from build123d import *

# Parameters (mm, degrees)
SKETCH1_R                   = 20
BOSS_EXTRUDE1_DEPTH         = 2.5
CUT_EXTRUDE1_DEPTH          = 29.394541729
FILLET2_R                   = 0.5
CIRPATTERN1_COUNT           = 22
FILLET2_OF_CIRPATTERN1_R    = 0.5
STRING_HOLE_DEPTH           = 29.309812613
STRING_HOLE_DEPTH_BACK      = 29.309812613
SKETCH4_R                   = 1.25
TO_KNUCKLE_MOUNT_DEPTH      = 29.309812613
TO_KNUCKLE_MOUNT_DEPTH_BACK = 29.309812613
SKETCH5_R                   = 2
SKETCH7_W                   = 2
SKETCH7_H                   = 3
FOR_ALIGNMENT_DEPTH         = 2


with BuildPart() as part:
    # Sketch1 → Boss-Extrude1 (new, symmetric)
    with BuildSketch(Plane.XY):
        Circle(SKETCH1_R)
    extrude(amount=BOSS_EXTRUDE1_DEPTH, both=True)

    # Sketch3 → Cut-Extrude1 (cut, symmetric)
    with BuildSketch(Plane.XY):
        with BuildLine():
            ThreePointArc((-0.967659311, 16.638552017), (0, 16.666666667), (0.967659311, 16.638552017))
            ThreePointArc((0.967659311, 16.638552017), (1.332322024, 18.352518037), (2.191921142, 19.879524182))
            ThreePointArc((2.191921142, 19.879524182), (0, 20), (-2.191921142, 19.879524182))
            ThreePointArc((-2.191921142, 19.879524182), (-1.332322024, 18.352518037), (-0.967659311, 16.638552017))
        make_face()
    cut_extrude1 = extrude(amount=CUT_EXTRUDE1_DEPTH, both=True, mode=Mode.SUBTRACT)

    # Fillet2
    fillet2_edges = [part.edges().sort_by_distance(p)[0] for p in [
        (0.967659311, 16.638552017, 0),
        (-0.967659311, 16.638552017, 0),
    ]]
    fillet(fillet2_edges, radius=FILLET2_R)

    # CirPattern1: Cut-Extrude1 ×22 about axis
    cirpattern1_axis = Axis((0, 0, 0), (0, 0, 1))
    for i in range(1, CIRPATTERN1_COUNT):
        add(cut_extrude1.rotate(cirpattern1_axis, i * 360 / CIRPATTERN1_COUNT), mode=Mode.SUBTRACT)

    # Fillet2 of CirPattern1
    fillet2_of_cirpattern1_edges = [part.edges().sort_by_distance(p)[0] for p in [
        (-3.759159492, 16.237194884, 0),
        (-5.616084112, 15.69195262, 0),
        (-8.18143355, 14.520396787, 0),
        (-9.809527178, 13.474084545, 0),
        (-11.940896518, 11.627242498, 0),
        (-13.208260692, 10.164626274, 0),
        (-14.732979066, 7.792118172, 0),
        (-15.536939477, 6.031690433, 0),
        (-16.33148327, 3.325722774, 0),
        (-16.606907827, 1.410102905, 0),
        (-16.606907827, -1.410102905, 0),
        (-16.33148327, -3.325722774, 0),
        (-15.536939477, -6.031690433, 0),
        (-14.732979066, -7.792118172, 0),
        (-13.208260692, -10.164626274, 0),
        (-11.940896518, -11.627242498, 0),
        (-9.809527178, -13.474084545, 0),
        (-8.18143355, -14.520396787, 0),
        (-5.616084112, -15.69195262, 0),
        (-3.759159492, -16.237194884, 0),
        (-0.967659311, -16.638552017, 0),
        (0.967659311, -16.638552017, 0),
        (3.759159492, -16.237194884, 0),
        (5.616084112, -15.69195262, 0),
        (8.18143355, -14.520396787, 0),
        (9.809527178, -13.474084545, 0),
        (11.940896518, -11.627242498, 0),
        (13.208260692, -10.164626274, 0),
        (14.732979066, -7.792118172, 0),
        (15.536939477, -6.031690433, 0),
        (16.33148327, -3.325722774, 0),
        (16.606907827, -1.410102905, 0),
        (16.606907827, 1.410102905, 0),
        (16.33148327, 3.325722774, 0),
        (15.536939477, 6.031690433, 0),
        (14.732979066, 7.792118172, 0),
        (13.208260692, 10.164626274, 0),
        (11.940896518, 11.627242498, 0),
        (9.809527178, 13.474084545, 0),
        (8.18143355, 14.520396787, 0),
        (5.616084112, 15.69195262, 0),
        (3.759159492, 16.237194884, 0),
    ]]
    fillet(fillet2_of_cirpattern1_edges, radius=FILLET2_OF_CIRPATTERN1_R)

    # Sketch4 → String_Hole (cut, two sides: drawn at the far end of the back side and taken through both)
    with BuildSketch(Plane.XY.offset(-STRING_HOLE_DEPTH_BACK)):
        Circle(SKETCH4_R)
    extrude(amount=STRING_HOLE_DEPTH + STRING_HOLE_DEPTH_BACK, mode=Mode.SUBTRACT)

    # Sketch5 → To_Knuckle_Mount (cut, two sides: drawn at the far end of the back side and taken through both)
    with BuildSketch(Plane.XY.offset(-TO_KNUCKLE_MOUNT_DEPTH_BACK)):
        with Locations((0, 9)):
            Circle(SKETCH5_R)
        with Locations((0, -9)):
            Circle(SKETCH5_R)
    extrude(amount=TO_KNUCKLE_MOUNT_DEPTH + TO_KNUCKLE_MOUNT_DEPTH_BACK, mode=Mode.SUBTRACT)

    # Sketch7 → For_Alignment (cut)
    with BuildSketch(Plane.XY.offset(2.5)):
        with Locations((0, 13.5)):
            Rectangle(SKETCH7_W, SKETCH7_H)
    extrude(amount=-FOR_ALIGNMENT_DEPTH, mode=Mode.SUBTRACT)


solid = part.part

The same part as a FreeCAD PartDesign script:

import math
import FreeCAD as App
import Part
import Sketcher
from FreeCAD import Vector
Q = App.Units.Quantity


def edges_at(feature, points):
    """Names of the edges that pass closest to the given points."""
    edges = feature.Shape.Edges
    near = lambda p: min(range(len(edges)), key=lambda i: edges[i].distToShape(Part.Vertex(*p))[0])
    return sorted({f"Edge{near(p) + 1}" for p in points})

doc = App.newDocument("Part")
params = doc.addObject("Spreadsheet::Sheet", "Params")
for row, (alias, value) in enumerate([
    ("sketch1_diameter", "40 mm"),
    ("pad1_length", "5 mm"),
    ("sketch2_radius", "20 mm"),
    ("pocket1_length", "58.789083 mm"),
    ("fillet_radius", "0.5 mm"),
    ("fillet2_radius", "0.5 mm"),
    ("sketch3_diameter", "2.5 mm"),
    ("sketch4_diameter", "4 mm"),
    ("sketch5_width", "2 mm"),
    ("sketch5_height", "3 mm"),
    ("pocket4_length", "2 mm"),
], start=1):
    params.set(f"A{row}", alias)
    params.set(f"B{row}", "=" + value)
    params.setAlias(f"B{row}", alias)

body = doc.addObject("PartDesign::Body", "Body")

# Sketch on XY plane
sketch1 = body.newObject("Sketcher::SketchObject", "Sketch")
sketch1.AttachmentSupport = (doc.getObject("XY_Plane"), [""])
sketch1.MapMode = "FlatFace"
sketch1.addGeometry(Part.Circle(Vector(0, 0, 0), Vector(0, 0, 1), 20), False)
sketch1.addConstraint([
    Sketcher.Constraint("Coincident", 0, 3, -1, 1),
    Sketcher.Constraint("Diameter", 0, Q("40 mm")),
])
sketch1.setExpression("Constraints[1]", "Params.sketch1_diameter")
pad1 = body.newObject("PartDesign::Pad", "Pad")
pad1.Profile = sketch1
pad1.setExpression("Length", "Params.pad1_length")
pad1.Midplane = True

# Sketch on XY plane
sketch2 = body.newObject("Sketcher::SketchObject", "Sketch001")
sketch2.AttachmentSupport = (doc.getObject("XY_Plane"), [""])
sketch2.MapMode = "FlatFace"
sketch2.addGeometry([
    Part.ArcOfCircle(Part.Circle(Vector(0, 0, 0), Vector(0, 0, 1), 16.7), math.radians(86.67), math.radians(93.33)),
    Part.ArcOfCircle(Part.Circle(Vector(6.8, 16.3, 0), Vector(0, 0, 1), 5.8), math.radians(142), math.radians(177)),
    Part.ArcOfCircle(Part.Circle(Vector(0, 0, 0), Vector(0, 0, 1), 20), math.radians(83.71), math.radians(96.29)),
    Part.ArcOfCircle(Part.Circle(Vector(-6.8, 16.3, 0), Vector(0, 0, 1), 5.8), math.radians(3), math.radians(38)),
], False)
sketch2.addConstraint([
    Sketcher.Constraint("Coincident", 0, 1, 1, 2),
    Sketcher.Constraint("Coincident", 1, 1, 2, 1),
    Sketcher.Constraint("Coincident", 2, 2, 3, 2),
    Sketcher.Constraint("Coincident", 3, 1, 0, 2),
    Sketcher.Constraint("Coincident", 0, 3, -1, 1),
    Sketcher.Constraint("Coincident", 2, 3, -1, 1),
    Sketcher.Constraint("Equal", 1, 3),
    Sketcher.Constraint("Symmetric", 1, 3, 3, 3, -2),
    Sketcher.Constraint("Radius", 2, Q("20 mm")),
    Sketcher.Constraint("Radius", 1, Q("5.803869 mm")),
    Sketcher.Constraint("Radius", 0, Q("16.666666 mm")),
    Sketcher.Constraint("DistanceX", -1, 1, 1, 3, Q("6.761738 mm")),
    Sketcher.Constraint("DistanceY", -1, 1, 1, 3, Q("16.301582 mm")),
])
sketch2.setExpression("Constraints[8]", "Params.sketch2_radius")
pocket1 = body.newObject("PartDesign::Pocket", "Pocket")
pocket1.Profile = sketch2
pocket1.setExpression("Length", "Params.pocket1_length")
pocket1.Midplane = True
doc.recompute()

fillet = body.newObject("PartDesign::Fillet", "Fillet")
fillet.Base = (pocket1, edges_at(pocket1, [(0.968, 16.639, 0), (-0.968, 16.639, 0)]))
fillet.setExpression("Radius", "Params.fillet_radius")
doc.recompute()

polarpattern = body.newObject("PartDesign::PolarPattern", "PolarPattern")
polarpattern.Originals = [pocket1]
polarpattern.Axis = (doc.getObject("Z_Axis"), [""])
polarpattern.Angle = 360
polarpattern.Occurrences = 22
body.Tip = polarpattern
doc.recompute()

fillet2 = body.newObject("PartDesign::Fillet", "Fillet001")
fillet2.Base = (polarpattern, edges_at(polarpattern, [
    (-3.759, 16.237, 0),
    (-5.616, 15.692, 0),
    (-8.181, 14.52, 0),
    (-9.81, 13.474, 0),
    (-11.941, 11.627, 0),
    (-13.208, 10.165, 0),
    (-14.733, 7.792, 0),
    (-15.537, 6.032, 0),
    (-16.331, 3.326, 0),
    (-16.607, 1.41, 0),
    (-16.607, -1.41, 0),
    (-16.331, -3.326, 0),
    (-15.537, -6.032, 0),
    (-14.733, -7.792, 0),
    (-13.208, -10.165, 0),
    (-11.941, -11.627, 0),
    (-9.81, -13.474, 0),
    (-8.181, -14.52, 0),
    (-5.616, -15.692, 0),
    (-3.759, -16.237, 0),
    (-0.968, -16.639, 0),
    (0.968, -16.639, 0),
    (3.759, -16.237, 0),
    (5.616, -15.692, 0),
    (8.181, -14.52, 0),
    (9.81, -13.474, 0),
    (11.941, -11.627, 0),
    (13.208, -10.165, 0),
    (14.733, -7.792, 0),
    (15.537, -6.032, 0),
    (16.331, -3.326, 0),
    (16.607, -1.41, 0),
    (16.607, 1.41, 0),
    (16.331, 3.326, 0),
    (15.537, 6.032, 0),
    (14.733, 7.792, 0),
    (13.208, 10.165, 0),
    (11.941, 11.627, 0),
    (9.81, 13.474, 0),
    (8.181, 14.52, 0),
    (5.616, 15.692, 0),
    (3.759, 16.237, 0),
]))
fillet2.setExpression("Radius", "Params.fillet2_radius")

# Sketch on XY plane
sketch3 = body.newObject("Sketcher::SketchObject", "Sketch002")
sketch3.AttachmentSupport = (doc.getObject("XY_Plane"), [""])
sketch3.MapMode = "FlatFace"
sketch3.addGeometry(Part.Circle(Vector(0, 0, 0), Vector(0, 0, 1), 1.2), False)
sketch3.addConstraint([
    Sketcher.Constraint("Coincident", 0, 3, -1, 1),
    Sketcher.Constraint("Diameter", 0, Q("2.5 mm")),
])
sketch3.setExpression("Constraints[1]", "Params.sketch3_diameter")
pocket2 = body.newObject("PartDesign::Pocket", "Pocket001")
pocket2.Profile = sketch3
pocket2.Type = "ThroughAll"
pocket2.Midplane = True

# Sketch on XY plane
sketch4 = body.newObject("Sketcher::SketchObject", "Sketch003")
sketch4.AttachmentSupport = (doc.getObject("XY_Plane"), [""])
sketch4.MapMode = "FlatFace"
sketch4.addGeometry([
    Part.Circle(Vector(0, 9, 0), Vector(0, 0, 1), 2),
    Part.Circle(Vector(0, -9, 0), Vector(0, 0, 1), 2),
], False)
sketch4.addConstraint([
    Sketcher.Constraint("Equal", 0, 1),
    Sketcher.Constraint("Symmetric", 0, 3, 1, 3, -1, 1),
    Sketcher.Constraint("PointOnObject", 0, 3, -2),
    Sketcher.Constraint("Diameter", 0, Q("4 mm")),
    Sketcher.Constraint("DistanceY", -1, 1, 0, 3, Q("9 mm")),
])
sketch4.setExpression("Constraints[3]", "Params.sketch4_diameter")
pocket3 = body.newObject("PartDesign::Pocket", "Pocket002")
pocket3.Profile = sketch4
pocket3.Type = "ThroughAll"
pocket3.Midplane = True

# Sketch on XY plane
sketch5 = body.newObject("Sketcher::SketchObject", "Sketch004")
sketch5.AttachmentSupport = (doc.getObject("XY_Plane"), [""])
sketch5.MapMode = "FlatFace"
sketch5.AttachmentOffset = App.Placement(Vector(0, 0, 2.5), App.Rotation())
sketch5.addGeometry([
    Part.LineSegment(Vector(-1, 15, 0), Vector(-1, 12, 0)),
    Part.LineSegment(Vector(-1, 12, 0), Vector(1, 12, 0)),
    Part.LineSegment(Vector(1, 12, 0), Vector(1, 15, 0)),
    Part.LineSegment(Vector(1, 15, 0), Vector(-1, 15, 0)),
], False)
sketch5.addConstraint([
    Sketcher.Constraint("Coincident", 0, 2, 1, 1),
    Sketcher.Constraint("Coincident", 1, 2, 2, 1),
    Sketcher.Constraint("Coincident", 2, 2, 3, 1),
    Sketcher.Constraint("Coincident", 3, 2, 0, 1),
    Sketcher.Constraint("Vertical", 0),
    Sketcher.Constraint("Horizontal", 1),
    Sketcher.Constraint("Vertical", 2),
    Sketcher.Constraint("Horizontal", 3),
    Sketcher.Constraint("DistanceX", 1, 1, 1, 2, Q("2 mm")),
    Sketcher.Constraint("DistanceY", 0, 2, 0, 1, Q("3 mm")),
    Sketcher.Constraint("DistanceX", 0, 2, -1, 1, Q("1 mm")),
    Sketcher.Constraint("DistanceY", -1, 1, 0, 2, Q("12 mm")),
])
sketch5.setExpression("Constraints[8]", "Params.sketch5_width")
sketch5.setExpression("Constraints[9]", "Params.sketch5_height")
pocket4 = body.newObject("PartDesign::Pocket", "Pocket003")
pocket4.Profile = sketch5
pocket4.setExpression("Length", "Params.pocket4_length")

doc.recompute()
